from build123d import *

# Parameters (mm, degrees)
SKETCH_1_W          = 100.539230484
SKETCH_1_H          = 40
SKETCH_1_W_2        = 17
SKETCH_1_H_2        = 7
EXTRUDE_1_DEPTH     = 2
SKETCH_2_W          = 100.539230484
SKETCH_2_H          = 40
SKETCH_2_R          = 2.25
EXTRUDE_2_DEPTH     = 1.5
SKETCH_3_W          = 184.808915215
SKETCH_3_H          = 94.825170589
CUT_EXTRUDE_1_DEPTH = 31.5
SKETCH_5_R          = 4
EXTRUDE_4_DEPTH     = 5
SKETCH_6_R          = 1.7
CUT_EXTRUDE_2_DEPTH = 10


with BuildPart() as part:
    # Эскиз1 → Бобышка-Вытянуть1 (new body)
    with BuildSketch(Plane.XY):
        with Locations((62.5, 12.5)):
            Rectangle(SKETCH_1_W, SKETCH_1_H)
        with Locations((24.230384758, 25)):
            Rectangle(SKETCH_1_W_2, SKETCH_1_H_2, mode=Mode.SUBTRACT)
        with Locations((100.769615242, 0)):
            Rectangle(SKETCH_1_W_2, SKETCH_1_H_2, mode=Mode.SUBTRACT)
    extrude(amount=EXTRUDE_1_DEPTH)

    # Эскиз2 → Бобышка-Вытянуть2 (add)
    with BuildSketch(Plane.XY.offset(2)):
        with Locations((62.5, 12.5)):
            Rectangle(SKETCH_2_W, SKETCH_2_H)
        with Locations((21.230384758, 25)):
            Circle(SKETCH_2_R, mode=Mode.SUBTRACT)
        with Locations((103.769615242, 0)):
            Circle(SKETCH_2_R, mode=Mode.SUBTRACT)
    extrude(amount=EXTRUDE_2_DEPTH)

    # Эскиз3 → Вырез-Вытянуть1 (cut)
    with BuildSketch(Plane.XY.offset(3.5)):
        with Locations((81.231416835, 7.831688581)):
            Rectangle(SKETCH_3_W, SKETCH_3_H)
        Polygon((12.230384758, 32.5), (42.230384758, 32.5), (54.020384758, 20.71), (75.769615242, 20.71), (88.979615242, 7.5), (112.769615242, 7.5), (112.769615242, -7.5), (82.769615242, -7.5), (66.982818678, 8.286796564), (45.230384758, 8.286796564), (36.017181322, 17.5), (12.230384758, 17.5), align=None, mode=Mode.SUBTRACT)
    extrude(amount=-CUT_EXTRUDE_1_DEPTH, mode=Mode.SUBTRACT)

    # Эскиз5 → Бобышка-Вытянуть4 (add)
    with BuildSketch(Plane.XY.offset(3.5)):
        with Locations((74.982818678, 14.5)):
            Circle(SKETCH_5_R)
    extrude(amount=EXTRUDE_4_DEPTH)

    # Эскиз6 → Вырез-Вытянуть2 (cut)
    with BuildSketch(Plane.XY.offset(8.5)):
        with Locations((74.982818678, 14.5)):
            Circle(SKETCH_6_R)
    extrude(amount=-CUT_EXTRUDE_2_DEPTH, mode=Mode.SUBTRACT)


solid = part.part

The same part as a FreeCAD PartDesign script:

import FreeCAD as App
import Part
import Sketcher

V = App.Vector
Q = App.Units.Quantity

doc = App.newDocument("Part")
body = doc.addObject("PartDesign::Body", "Body")

# Sketch on XY plane
sketch1 = body.newObject("Sketcher::SketchObject", "Sketch")
sketch1.AttachmentSupport = (doc.getObject("XY_Plane"), [""])
sketch1.MapMode = "FlatFace"
sketch1.addGeometry([
    Part.LineSegment(V(12, 32, 0), V(12, -8, 0)),  # 0
    Part.LineSegment(V(12, -8, 0), V(113, -8, 0)),  # 1
    Part.LineSegment(V(113, -8, 0), V(113, 32, 0)),  # 2
    Part.LineSegment(V(113, 32, 0), V(12, 32, 0)),  # 3
    Part.LineSegment(V(109, -4, 0), V(92, -4, 0)),  # 4
    Part.LineSegment(V(92, -4, 0), V(92, 4, 0)),  # 5
    Part.LineSegment(V(92, 4, 0), V(109, 4, 0)),  # 6
    Part.LineSegment(V(109, 4, 0), V(109, -4, 0)),  # 7
    Part.LineSegment(V(33, 22, 0), V(16, 22, 0)),  # 8
    Part.LineSegment(V(16, 22, 0), V(16, 28, 0)),  # 9
    Part.LineSegment(V(16, 28, 0), V(33, 28, 0)),  # 10
    Part.LineSegment(V(33, 28, 0), V(33, 22, 0)),  # 11
], False)
sketch1.addConstraint([
    Sketcher.Constraint("Coincident", 0, 2, 1, 1),
    Sketcher.Constraint("Coincident", 1, 2, 2, 1),
    Sketcher.Constraint("Coincident", 2, 2, 3, 1),
    Sketcher.Constraint("Coincident", 3, 2, 0, 1),
    Sketcher.Constraint("Coincident", 4, 2, 5, 1),
    Sketcher.Constraint("Coincident", 5, 2, 6, 1),
    Sketcher.Constraint("Coincident", 6, 2, 7, 1),
    Sketcher.Constraint("Coincident", 7, 2, 4, 1),
    Sketcher.Constraint("Coincident", 8, 2, 9, 1),
    Sketcher.Constraint("Coincident", 9, 2, 10, 1),
    Sketcher.Constraint("Coincident", 10, 2, 11, 1),
    Sketcher.Constraint("Coincident", 11, 2, 8, 1),
    Sketcher.Constraint("Vertical", 0),
    Sketcher.Constraint("Horizontal", 1),
    Sketcher.Constraint("Vertical", 2),
    Sketcher.Constraint("Horizontal", 3),
    Sketcher.Constraint("Horizontal", 4),
    Sketcher.Constraint("Vertical", 5),
    Sketcher.Constraint("Horizontal", 6),
    Sketcher.Constraint("Vertical", 7),
    Sketcher.Constraint("Horizontal", 8),
    Sketcher.Constraint("Vertical", 9),
    Sketcher.Constraint("Horizontal", 10),
    Sketcher.Constraint("Vertical", 11),
    Sketcher.Constraint("Equal", 6, 8),
    Sketcher.Constraint("Equal", 7, 9),
    Sketcher.Constraint("DistanceX", 4, 2, 4, 1, Q("17 mm")),
    Sketcher.Constraint("DistanceY", 0, 2, 0, 1, Q("40 mm")),
    Sketcher.Constraint("DistanceY", 5, 1, 5, 2, Q("7 mm")),
    Sketcher.Constraint("DistanceY", 1, 2, 4, 2, Q("4 mm")),
    Sketcher.Constraint("DistanceY", 8, 2, 3, 2, Q("11 mm")),
    Sketcher.Constraint("DistanceY", 0, 2, -1, 1, Q("7.5 mm")),
    Sketcher.Constraint("DistanceX", 4, 2, 1, 2, Q("20.5 mm")),
    Sketcher.Constraint("DistanceX", 3, 2, 8, 2, Q("3.5 mm")),
    Sketcher.Constraint("DistanceX", 1, 1, 1, 2, Q("100.53923 mm")),
    Sketcher.Constraint("DistanceX", -1, 1, 0, 2, Q("12.230385 mm")),
])
pad1 = body.newObject("PartDesign::Pad", "Pad")
pad1.Profile = sketch1
pad1.Length = 2

# Sketch on XY plane
sketch2 = body.newObject("Sketcher::SketchObject", "Sketch001")
sketch2.AttachmentSupport = (doc.getObject("XY_Plane"), [""])
sketch2.MapMode = "FlatFace"
sketch2.AttachmentOffset = App.Placement(V(0, 0, 2), App.Rotation())
sketch2.addGeometry([
    Part.LineSegment(V(12.2, 32.5, 0), V(12.2, -7.5, 0)),  # 0
    Part.LineSegment(V(12.2, -7.5, 0), V(112.8, -7.5, 0)),  # 1
    Part.LineSegment(V(112.8, -7.5, 0), V(112.8, 32.5, 0)),  # 2
    Part.LineSegment(V(112.8, 32.5, 0), V(12.2, 32.5, 0)),  # 3
    Part.Circle(V(103.8, 0, 0), V(0, 0, 1), 2.2),  # 4
    Part.Circle(V(21.2, 25, 0), V(0, 0, 1), 2.2),  # 5
], False)
sketch2.addConstraint([
    Sketcher.Constraint("Coincident", 0, 2, 1, 1),
    Sketcher.Constraint("Coincident", 1, 2, 2, 1),
    Sketcher.Constraint("Coincident", 2, 2, 3, 1),
    Sketcher.Constraint("Coincident", 3, 2, 0, 1),
    Sketcher.Constraint("Vertical", 0),
    Sketcher.Constraint("Horizontal", 1),
    Sketcher.Constraint("Vertical", 2),
    Sketcher.Constraint("Horizontal", 3),
    Sketcher.Constraint("Equal", 4, 5),
    Sketcher.Constraint("PointOnObject", 4, 3, -1),
    Sketcher.Constraint("Diameter", 4, Q("4.5 mm")),
    Sketcher.Constraint("DistanceY", 0, 2, 0, 1, Q("40 mm")),
    Sketcher.Constraint("DistanceY", -1, 1, 5, 3, Q("25 mm")),
    Sketcher.Constraint("DistanceX", 0, 2, 5, 3, Q("9 mm")),
    Sketcher.Constraint("DistanceX", 4, 3, 1, 2, Q("9 mm")),
    Sketcher.Constraint("DistanceY", 0, 2, -1, 1, Q("7.5 mm")),
    Sketcher.Constraint("DistanceX", 1, 1, 1, 2, Q("100.53923 mm")),
    Sketcher.Constraint("DistanceX", -1, 1, 4, 3, Q("103.769615 mm")),
])
pad2 = body.newObject("PartDesign::Pad", "Pad001")
pad2.Profile = sketch2
pad2.Length = 1.5

# Sketch on XY plane
sketch3 = body.newObject("Sketcher::SketchObject", "Sketch002")
sketch3.AttachmentSupport = (doc.getObject("XY_Plane"), [""])
sketch3.MapMode = "FlatFace"
sketch3.AttachmentOffset = App.Placement(V(0, 0, 3.5), App.Rotation())
sketch3.addGeometry([
    Part.LineSegment(V(-11, 55, 0), V(-11, -40, 0)),  # 0
    Part.LineSegment(V(-11, -40, 0), V(174, -40, 0)),  # 1
    Part.LineSegment(V(174, -40, 0), V(174, 55, 0)),  # 2
    Part.LineSegment(V(174, 55, 0), V(-11, 55, 0)),  # 3
    Part.LineSegment(V(12, 18, 0), V(12, 32, 0)),  # 4
    Part.LineSegment(V(12, 32, 0), V(42, 32, 0)),  # 5
    Part.LineSegment(V(42, 32, 0), V(54, 21, 0)),  # 6
    Part.LineSegment(V(54, 21, 0), V(76, 21, 0)),  # 7
    Part.LineSegment(V(76, 21, 0), V(89, 8, 0)),  # 8
    Part.LineSegment(V(89, 8, 0), V(113, 8, 0)),  # 9
    Part.LineSegment(V(113, 8, 0), V(113, -8, 0)),  # 10
    Part.LineSegment(V(113, -8, 0), V(83, -8, 0)),  # 11
    Part.LineSegment(V(83, -8, 0), V(67, 8, 0)),  # 12
    Part.LineSegment(V(67, 8, 0), V(45, 8, 0)),  # 13
    Part.LineSegment(V(45, 8, 0), V(36, 18, 0)),  # 14
    Part.LineSegment(V(36, 18, 0), V(12, 18, 0)),  # 15
], False)
sketch3.addConstraint([
    Sketcher.Constraint("Coincident", 0, 2, 1, 1),
    Sketcher.Constraint("Coincident", 1, 2, 2, 1),
    Sketcher.Constraint("Coincident", 2, 2, 3, 1),
    Sketcher.Constraint("Coincident", 3, 2, 0, 1),
    Sketcher.Constraint("Coincident", 4, 2, 5, 1),
    Sketcher.Constraint("Coincident", 5, 2, 6, 1),
    Sketcher.Constraint("Coincident", 6, 2, 7, 1),
    Sketcher.Constraint("Coincident", 7, 2, 8, 1),
    Sketcher.Constraint("Coincident", 8, 2, 9, 1),
    Sketcher.Constraint("Coincident", 9, 2, 10, 1),
    Sketcher.Constraint("Coincident", 10, 2, 11, 1),
    Sketcher.Constraint("Coincident", 11, 2, 12, 1),
    Sketcher.Constraint("Coincident", 12, 2, 13, 1),
    Sketcher.Constraint("Coincident", 13, 2, 14, 1),
    Sketcher.Constraint("Coincident", 14, 2, 15, 1),
    Sketcher.Constraint("Coincident", 15, 2, 4, 1),
    Sketcher.Constraint("Vertical", 0),
    Sketcher.Constraint("Horizontal", 1),
    Sketcher.Constraint("Vertical", 2),
    Sketcher.Constraint("Horizontal", 3),
    Sketcher.Constraint("Vertical", 4),
    Sketcher.Constraint("Horizontal", 5),
    Sketcher.Constraint("Horizontal", 7),
    Sketcher.Constraint("Horizontal", 9),
    Sketcher.Constraint("Vertical", 10),
    Sketcher.Constraint("Horizontal", 11),
    Sketcher.Constraint("Horizontal", 13),
    Sketcher.Constraint("Horizontal", 15),
    Sketcher.Constraint("Parallel", 6, 8),
    Sketcher.Constraint("Parallel", 8, 12),
    Sketcher.Constraint("Parallel", 12, 14),
    Sketcher.Constraint("Equal", 5, 11),
    Sketcher.Constraint("Equal", 4, 10),
    Sketcher.Constraint("DistanceX", 5, 1, 5, 2, Q("30 mm")),
    Sketcher.Constraint("DistanceY", 4, 1, 4, 2, Q("15 mm")),
    Sketcher.Constraint("Angle", 6, Q("-45 deg")),
    Sketcher.Constraint("DistanceY", 8, 2, 5, 2, Q("25 mm")),
    Sketcher.Constraint("DistanceX", 7, 2, 9, 2, Q("37 mm")),
    Sketcher.Constraint("DistanceX", 5, 2, 13, 2, Q("3 mm")),
    Sketcher.Constraint("DistanceX", 9, 1, 9, 2, Q("23.79 mm")),
    Sketcher.Constraint("DistanceY", -1, 1, 4, 2, Q("32.5 mm")),
    Sketcher.Constraint("Distance", 12, Q("22.325902 mm")),
    Sketcher.Constraint("DistanceX", 7, 1, 7, 2, Q("21.74923 mm")),
    Sketcher.Constraint("DistanceY", 0, 2, 0, 1, Q("94.825171 mm")),
    Sketcher.Constraint("DistanceX", 1, 1, 1, 2, Q("184.808915 mm")),
    Sketcher.Constraint("DistanceX", 0, 2, -1, 1, Q("11.173041 mm")),
    Sketcher.Constraint("DistanceX", -1, 1, 12, 2, Q("66.982819 mm")),
    Sketcher.Constraint("DistanceY", 0, 2, -1, 1, Q("39.580897 mm")),
])
pocket1 = body.newObject("PartDesign::Pocket", "Pocket")
pocket1.Profile = sketch3
pocket1.Length = 31.5

# Sketch on XY plane
sketch4 = body.newObject("Sketcher::SketchObject", "Sketch003")
sketch4.AttachmentSupport = (doc.getObject("XY_Plane"), [""])
sketch4.MapMode = "FlatFace"
sketch4.AttachmentOffset = App.Placement(V(0, 0, 3.5), App.Rotation())
sketch4.addGeometry(Part.Circle(V(75, 14.5, 0), V(0, 0, 1), 4), False)
sketch4.addConstraint([
    Sketcher.Constraint("Diameter", 0, Q("8 mm")),
    Sketcher.Constraint("DistanceY", -1, 1, 0, 3, Q("14.5 mm")),
    Sketcher.Constraint("DistanceX", -1, 1, 0, 3, Q("74.982819 mm")),
])
pad3 = body.newObject("PartDesign::Pad", "Pad002")
pad3.Profile = sketch4
pad3.Length = 5

# Sketch on XY plane
sketch5 = body.newObject("Sketcher::SketchObject", "Sketch004")
sketch5.AttachmentSupport = (doc.getObject("XY_Plane"), [""])
sketch5.MapMode = "FlatFace"
sketch5.AttachmentOffset = App.Placement(V(0, 0, 8.5), App.Rotation())
sketch5.addGeometry(Part.Circle(V(75, 14.5, 0), V(0, 0, 1), 1.7), False)
sketch5.addConstraint([
    Sketcher.Constraint("Diameter", 0, Q("3.4 mm")),
    Sketcher.Constraint("DistanceY", -1, 1, 0, 3, Q("14.5 mm")),
    Sketcher.Constraint("DistanceX", -1, 1, 0, 3, Q("74.982819 mm")),
])
pocket2 = body.newObject("PartDesign::Pocket", "Pocket001")
pocket2.Profile = sketch5
pocket2.Length = 10

doc.recompute()
